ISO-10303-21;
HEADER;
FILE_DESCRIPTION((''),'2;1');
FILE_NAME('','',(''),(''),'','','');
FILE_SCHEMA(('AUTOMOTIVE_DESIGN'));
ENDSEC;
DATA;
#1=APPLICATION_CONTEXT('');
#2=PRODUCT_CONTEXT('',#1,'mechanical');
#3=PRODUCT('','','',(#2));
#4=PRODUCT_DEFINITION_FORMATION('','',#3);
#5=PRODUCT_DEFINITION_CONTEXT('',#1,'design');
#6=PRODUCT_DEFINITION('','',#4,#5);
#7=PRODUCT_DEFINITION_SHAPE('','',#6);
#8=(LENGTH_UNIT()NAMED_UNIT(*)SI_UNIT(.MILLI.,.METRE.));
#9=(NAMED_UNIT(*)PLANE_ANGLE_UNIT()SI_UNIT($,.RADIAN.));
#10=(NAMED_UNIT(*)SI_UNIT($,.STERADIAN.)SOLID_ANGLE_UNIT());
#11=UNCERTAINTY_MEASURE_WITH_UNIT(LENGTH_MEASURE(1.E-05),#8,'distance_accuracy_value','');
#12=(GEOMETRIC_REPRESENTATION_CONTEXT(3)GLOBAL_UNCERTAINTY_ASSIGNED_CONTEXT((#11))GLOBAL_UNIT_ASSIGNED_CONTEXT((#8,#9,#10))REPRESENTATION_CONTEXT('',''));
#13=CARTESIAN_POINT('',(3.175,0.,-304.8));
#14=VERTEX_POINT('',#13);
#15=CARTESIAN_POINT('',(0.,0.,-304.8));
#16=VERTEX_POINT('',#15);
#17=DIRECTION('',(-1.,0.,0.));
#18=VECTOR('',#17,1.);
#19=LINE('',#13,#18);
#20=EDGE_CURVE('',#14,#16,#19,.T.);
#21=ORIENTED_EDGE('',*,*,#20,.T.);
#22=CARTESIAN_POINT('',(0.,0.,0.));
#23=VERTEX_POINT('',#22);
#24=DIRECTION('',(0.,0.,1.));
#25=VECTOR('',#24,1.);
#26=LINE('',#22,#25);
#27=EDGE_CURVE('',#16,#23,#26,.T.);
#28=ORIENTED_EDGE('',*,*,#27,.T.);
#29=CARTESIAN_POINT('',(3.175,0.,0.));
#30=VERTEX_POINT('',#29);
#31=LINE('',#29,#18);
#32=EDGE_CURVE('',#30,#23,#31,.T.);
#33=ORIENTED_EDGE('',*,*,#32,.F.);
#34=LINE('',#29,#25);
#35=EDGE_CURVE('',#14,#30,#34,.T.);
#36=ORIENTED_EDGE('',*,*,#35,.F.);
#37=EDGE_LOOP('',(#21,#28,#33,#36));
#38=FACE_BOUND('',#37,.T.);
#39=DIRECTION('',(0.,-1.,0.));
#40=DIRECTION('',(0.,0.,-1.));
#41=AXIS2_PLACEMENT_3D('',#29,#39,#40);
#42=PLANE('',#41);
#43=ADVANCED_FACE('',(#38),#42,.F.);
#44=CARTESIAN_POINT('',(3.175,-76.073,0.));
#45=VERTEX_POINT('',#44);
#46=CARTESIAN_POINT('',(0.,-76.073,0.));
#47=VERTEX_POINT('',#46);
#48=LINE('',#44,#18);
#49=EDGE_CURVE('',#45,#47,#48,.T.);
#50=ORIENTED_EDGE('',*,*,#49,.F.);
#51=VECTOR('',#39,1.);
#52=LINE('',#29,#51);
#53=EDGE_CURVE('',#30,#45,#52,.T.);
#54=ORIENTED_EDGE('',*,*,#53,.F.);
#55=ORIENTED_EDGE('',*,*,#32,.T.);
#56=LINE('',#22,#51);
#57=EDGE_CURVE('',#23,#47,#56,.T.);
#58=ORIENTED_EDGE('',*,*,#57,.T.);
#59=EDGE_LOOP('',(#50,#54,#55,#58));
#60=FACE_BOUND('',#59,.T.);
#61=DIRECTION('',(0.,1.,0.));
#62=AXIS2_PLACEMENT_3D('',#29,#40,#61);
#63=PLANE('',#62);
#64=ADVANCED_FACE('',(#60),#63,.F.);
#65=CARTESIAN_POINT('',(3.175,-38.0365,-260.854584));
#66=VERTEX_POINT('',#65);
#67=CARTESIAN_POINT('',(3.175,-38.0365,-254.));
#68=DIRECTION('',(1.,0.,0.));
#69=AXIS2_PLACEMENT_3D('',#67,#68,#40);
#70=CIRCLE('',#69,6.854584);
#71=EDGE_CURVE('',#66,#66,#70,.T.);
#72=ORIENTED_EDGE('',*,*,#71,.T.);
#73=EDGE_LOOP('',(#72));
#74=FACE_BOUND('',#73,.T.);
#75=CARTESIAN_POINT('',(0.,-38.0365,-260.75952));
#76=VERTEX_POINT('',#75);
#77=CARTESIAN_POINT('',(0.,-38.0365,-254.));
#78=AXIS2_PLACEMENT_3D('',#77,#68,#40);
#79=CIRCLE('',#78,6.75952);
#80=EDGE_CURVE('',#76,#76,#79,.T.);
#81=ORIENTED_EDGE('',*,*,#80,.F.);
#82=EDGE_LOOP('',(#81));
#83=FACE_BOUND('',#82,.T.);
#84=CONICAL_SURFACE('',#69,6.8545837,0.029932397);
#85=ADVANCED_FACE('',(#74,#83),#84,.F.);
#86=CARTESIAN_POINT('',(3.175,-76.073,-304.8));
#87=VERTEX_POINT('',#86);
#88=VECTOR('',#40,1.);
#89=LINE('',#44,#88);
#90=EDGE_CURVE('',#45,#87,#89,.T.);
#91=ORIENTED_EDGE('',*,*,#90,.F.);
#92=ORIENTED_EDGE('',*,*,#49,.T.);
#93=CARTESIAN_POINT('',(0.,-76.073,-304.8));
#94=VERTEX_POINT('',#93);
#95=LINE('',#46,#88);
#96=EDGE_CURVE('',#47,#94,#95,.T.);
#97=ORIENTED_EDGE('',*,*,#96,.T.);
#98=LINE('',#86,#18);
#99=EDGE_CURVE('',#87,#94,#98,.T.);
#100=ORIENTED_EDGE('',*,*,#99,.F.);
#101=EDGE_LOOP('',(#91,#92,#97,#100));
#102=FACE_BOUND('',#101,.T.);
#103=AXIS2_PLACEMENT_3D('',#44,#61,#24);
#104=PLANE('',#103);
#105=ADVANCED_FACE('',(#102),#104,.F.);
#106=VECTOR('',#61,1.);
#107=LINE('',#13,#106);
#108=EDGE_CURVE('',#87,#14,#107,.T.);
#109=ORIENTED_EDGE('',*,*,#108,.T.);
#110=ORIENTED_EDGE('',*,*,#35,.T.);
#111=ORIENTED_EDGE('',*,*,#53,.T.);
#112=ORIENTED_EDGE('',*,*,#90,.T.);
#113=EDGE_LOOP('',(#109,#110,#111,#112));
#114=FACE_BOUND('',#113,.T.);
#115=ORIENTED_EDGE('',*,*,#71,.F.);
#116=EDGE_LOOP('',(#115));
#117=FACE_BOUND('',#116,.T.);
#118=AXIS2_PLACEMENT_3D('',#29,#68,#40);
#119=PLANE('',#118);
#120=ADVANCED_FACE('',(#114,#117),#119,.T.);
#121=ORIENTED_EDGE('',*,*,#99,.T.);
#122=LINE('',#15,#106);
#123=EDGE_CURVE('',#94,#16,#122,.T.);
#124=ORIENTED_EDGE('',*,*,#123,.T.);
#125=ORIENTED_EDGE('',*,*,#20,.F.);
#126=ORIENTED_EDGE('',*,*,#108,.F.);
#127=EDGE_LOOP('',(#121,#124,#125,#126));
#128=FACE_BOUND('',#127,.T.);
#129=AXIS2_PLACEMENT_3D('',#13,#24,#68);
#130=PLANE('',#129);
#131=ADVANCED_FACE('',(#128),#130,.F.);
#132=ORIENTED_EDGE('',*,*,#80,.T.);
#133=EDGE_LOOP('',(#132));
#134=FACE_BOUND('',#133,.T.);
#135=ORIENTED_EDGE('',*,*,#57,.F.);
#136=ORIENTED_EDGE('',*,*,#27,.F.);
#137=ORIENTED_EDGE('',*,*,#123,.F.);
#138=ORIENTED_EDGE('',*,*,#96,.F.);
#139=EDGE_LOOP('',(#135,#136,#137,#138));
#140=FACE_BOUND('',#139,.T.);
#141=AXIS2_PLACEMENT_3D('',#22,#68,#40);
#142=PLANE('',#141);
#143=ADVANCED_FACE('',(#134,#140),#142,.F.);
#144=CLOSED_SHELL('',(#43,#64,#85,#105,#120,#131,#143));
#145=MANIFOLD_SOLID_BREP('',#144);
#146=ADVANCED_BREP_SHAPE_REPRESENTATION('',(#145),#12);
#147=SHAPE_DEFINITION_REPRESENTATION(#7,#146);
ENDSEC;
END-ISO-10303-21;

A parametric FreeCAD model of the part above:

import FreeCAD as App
import Part
import Sketcher
from FreeCAD import Vector
Q = App.Units.Quantity


def add_polygon(sketch, points):
    """Adds a closed chain of lines whose ends are joined by coincident constraints."""
    first, n = sketch.GeometryCount, len(points)
    for a, b in zip(points, points[1:] + points[:1]):
        sketch.addGeometry(Part.LineSegment(App.Vector(*a, 0), App.Vector(*b, 0)), False)
    for i in range(n):
        sketch.addConstraint(Sketcher.Constraint("Coincident", first + i, 2, first + (i + 1) % n, 1))

doc = App.newDocument("Part")
body = doc.addObject("PartDesign::Body", "Body")

# Sketch on YZ plane
sketch1 = doc.addObject("Sketcher::SketchObject", "Sketch")
body.addObject(sketch1)
sketch1.AttachmentSupport = (doc.YZ_Plane, [""])
sketch1.MapMode = "FlatFace"
add_polygon(sketch1, [(0, 0), (-76, 0), (-76, -305), (0, -305)])  # lines 0-3
sketch1.addConstraint(Sketcher.Constraint("Horizontal", 0))
sketch1.addConstraint(Sketcher.Constraint("Vertical", 1))
sketch1.addConstraint(Sketcher.Constraint("Horizontal", 2))
sketch1.addConstraint(Sketcher.Constraint("Vertical", 3))
sketch1.addConstraint(Sketcher.Constraint("Coincident", 3, 2, -1, 1))
sketch1.addConstraint(Sketcher.Constraint("DistanceY", 1, 2, 1, 1, Q("12 in")))
sketch1.addConstraint(Sketcher.Constraint("DistanceX", 0, 2, 0, 1, Q("2.995 in")))
pad1 = doc.addObject("PartDesign::Pad", "Pad")
body.addObject(pad1)
pad1.Profile = sketch1
pad1.Length = Q("0.125 in")

# Sketch on XZ plane
sketch2 = doc.addObject("Sketcher::SketchObject", "Sketch001")
body.addObject(sketch2)
sketch2.AttachmentSupport = (doc.XZ_Plane, [""])
sketch2.MapMode = "FlatFace"
sketch2.AttachmentOffset = App.Placement(Vector(0, 0, 1.4975 * 25.4), App.Rotation())
add_polygon(sketch2, [(0, -254), (3.2, -254), (3.2, -260.9), (-6.7, -260.6), (-6.7, -259.6), (0, -259.6)])  # lines 0-5
sketch2.addGeometry(Part.LineSegment(Vector(3.2, -254, 0), Vector(-6.7, -254, 0)), True)  # axis
sketch2.addConstraint(Sketcher.Constraint("Horizontal", 0))
sketch2.addConstraint(Sketcher.Constraint("Vertical", 1))
sketch2.addConstraint(Sketcher.Constraint("Vertical", 3))
sketch2.addConstraint(Sketcher.Constraint("Horizontal", 4))
sketch2.addConstraint(Sketcher.Constraint("Vertical", 5))
sketch2.addConstraint(Sketcher.Constraint("Horizontal", 6))
sketch2.addConstraint(Sketcher.Constraint("Coincident", 6, 1, 0, 2))
sketch2.addConstraint(Sketcher.Constraint("PointOnObject", 4, 2, -2))
sketch2.addConstraint(Sketcher.Constraint("Vertical", 3, 2, 6, 2))
sketch2.addConstraint(Sketcher.Constraint("DistanceY", 0, 2, -1, 1, Q("10 in")))
sketch2.addConstraint(Sketcher.Constraint("DistanceX", 6, 2, 6, 1, Q("0.39 in")))
sketch2.addConstraint(Sketcher.Constraint("DistanceX", 0, 1, 0, 2, Q("0.125 in")))
sketch2.addConstraint(Sketcher.Constraint("DistanceY", 5, 1, 5, 2, Q("0.219 in")))
sketch2.addConstraint(Sketcher.Constraint("DistanceY", 1, 2, 2, 2, Q("0.296599 mm")))
sketch2.addConstraint(Sketcher.Constraint("DistanceY", 1, 2, 1, 1, Q("6.854584 mm")))
groove = doc.addObject("PartDesign::Groove", "Groove")
body.addObject(groove)
groove.Profile = sketch2
groove.ReferenceAxis = (sketch2, ["Axis0"])
groove.Angle = 360

doc.recompute()
